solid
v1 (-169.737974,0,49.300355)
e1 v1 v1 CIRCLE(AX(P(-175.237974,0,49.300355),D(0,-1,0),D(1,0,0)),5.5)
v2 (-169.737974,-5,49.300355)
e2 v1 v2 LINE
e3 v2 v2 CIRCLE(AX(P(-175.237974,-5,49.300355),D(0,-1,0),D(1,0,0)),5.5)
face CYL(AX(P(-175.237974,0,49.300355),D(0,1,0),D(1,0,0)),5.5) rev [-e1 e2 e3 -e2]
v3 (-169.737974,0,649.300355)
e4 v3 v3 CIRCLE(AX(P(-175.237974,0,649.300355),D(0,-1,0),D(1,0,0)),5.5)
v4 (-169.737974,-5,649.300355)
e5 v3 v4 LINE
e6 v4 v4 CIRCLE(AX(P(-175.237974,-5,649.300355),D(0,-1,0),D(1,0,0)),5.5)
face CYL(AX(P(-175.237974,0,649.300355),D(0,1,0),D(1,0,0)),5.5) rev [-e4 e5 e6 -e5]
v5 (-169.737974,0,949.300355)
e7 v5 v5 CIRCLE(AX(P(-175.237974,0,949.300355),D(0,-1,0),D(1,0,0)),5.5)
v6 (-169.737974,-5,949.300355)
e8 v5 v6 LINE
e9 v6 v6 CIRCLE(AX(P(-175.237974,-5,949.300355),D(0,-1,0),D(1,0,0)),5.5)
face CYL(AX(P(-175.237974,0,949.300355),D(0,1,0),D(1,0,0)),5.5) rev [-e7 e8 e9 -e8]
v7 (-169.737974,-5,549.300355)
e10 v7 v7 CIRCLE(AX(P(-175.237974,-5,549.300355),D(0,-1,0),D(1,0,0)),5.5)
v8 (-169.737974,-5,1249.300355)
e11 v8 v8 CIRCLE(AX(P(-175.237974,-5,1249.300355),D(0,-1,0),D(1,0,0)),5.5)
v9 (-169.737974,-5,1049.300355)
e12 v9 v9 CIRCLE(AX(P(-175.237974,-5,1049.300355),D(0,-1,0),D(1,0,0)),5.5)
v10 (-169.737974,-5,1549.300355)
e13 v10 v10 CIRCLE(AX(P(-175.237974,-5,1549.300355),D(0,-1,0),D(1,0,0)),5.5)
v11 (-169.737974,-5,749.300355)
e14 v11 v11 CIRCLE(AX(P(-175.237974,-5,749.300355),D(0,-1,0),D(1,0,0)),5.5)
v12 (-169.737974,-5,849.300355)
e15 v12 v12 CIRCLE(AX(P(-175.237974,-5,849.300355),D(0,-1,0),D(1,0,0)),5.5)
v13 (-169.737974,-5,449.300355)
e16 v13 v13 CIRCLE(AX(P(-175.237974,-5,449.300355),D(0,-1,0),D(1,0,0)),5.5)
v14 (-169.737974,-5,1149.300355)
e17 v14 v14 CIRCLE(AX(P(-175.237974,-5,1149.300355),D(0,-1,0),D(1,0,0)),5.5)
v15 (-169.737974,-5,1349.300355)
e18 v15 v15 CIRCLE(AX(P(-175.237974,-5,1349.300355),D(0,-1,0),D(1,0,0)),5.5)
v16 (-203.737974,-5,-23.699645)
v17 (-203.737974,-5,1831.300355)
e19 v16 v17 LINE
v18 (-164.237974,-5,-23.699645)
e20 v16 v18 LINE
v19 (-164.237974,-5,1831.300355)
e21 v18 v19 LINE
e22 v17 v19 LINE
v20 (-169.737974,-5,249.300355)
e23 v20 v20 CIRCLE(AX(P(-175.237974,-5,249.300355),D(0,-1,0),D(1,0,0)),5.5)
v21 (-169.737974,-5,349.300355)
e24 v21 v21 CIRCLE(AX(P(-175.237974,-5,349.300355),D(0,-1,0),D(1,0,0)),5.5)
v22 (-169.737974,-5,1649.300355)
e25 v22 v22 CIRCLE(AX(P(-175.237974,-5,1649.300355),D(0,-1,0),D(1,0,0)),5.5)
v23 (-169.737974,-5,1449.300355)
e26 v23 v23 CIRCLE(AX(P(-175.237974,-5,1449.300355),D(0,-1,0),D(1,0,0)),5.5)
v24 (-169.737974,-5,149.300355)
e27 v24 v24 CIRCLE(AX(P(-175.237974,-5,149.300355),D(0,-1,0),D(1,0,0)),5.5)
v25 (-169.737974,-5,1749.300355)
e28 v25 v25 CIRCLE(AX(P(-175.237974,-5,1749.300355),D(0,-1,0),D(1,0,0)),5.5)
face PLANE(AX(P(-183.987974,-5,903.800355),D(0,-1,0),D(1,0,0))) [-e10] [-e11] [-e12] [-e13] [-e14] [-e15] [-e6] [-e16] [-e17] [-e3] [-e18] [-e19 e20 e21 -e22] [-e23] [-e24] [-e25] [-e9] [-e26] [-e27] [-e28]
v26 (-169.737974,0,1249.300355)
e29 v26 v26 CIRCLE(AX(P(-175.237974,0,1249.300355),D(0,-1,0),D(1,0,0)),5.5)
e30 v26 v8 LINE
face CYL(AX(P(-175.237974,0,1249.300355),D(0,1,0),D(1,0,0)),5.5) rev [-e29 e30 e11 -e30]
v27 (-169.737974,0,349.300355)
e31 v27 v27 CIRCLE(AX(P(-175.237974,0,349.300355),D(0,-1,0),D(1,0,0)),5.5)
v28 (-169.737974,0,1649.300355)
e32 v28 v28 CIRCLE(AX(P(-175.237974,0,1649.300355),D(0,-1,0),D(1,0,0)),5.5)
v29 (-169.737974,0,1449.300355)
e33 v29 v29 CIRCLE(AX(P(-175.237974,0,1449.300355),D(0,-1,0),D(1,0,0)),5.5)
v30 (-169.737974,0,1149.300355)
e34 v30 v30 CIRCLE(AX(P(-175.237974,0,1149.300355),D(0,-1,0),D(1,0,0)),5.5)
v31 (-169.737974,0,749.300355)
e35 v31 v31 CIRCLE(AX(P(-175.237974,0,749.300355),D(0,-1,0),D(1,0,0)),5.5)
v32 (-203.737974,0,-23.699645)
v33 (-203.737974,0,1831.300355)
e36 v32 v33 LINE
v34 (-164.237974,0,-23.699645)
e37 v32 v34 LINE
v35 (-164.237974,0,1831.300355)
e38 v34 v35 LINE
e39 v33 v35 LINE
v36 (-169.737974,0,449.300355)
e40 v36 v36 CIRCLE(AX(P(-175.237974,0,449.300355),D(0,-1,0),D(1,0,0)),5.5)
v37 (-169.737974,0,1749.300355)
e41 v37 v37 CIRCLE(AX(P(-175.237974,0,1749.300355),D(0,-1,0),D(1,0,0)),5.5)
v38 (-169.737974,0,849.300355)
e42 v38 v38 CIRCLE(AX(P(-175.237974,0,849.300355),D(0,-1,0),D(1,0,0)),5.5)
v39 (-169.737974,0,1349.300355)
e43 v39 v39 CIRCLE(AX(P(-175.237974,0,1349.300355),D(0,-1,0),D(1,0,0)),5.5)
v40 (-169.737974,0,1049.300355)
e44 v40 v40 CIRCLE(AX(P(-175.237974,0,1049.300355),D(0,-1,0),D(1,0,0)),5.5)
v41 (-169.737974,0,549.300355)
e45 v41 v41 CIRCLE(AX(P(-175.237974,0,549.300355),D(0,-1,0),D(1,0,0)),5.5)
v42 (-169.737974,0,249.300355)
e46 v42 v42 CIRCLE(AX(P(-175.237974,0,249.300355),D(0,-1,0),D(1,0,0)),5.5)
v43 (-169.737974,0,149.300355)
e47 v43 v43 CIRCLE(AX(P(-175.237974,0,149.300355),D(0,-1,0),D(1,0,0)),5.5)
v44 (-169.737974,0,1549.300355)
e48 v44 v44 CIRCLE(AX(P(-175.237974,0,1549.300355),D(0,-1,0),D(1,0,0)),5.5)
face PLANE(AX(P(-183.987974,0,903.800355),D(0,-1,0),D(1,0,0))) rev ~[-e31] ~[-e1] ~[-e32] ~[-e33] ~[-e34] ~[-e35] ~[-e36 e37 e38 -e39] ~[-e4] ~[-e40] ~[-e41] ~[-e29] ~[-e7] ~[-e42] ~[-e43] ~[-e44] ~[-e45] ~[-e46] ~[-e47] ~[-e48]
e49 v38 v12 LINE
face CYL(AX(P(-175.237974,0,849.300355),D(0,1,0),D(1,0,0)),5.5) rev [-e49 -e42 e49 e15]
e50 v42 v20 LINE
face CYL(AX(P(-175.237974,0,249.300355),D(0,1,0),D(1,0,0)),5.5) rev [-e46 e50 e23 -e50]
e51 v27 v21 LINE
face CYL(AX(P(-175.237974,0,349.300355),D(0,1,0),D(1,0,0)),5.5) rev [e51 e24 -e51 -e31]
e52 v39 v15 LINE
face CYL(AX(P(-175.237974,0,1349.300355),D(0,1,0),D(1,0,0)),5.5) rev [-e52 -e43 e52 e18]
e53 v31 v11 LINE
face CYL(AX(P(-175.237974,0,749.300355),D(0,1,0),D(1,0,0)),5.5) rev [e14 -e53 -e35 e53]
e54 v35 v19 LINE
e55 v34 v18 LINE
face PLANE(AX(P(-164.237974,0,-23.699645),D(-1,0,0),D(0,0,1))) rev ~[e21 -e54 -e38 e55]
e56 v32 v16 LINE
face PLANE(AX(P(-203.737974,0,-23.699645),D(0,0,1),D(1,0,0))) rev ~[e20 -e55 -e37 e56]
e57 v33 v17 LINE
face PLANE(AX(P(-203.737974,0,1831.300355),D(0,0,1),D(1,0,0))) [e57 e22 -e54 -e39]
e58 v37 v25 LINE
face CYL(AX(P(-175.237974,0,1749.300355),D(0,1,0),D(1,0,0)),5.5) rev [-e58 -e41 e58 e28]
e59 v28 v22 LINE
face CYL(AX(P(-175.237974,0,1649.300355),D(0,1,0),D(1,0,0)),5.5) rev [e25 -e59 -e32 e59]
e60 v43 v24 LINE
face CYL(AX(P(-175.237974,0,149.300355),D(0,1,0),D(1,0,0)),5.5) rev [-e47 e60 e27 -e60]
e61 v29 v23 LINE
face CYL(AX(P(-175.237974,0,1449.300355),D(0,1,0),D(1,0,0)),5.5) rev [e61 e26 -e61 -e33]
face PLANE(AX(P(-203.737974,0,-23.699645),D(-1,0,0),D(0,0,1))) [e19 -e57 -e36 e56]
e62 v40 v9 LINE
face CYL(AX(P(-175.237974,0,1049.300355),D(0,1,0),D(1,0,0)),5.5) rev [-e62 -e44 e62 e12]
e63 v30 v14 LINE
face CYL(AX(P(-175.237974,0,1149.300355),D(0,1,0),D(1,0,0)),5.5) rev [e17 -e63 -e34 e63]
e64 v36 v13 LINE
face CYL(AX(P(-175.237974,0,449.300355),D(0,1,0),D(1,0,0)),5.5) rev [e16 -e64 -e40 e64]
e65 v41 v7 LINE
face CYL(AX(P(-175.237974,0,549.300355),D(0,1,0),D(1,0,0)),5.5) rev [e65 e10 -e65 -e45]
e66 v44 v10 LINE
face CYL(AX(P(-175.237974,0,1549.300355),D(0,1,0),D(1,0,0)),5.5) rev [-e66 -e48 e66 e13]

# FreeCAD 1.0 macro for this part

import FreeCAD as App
import Part
import Sketcher


def add_polygon(sketch, points):
    """Adds a closed chain of lines whose ends are joined by coincident constraints."""
    first, n = sketch.GeometryCount, len(points)
    for a, b in zip(points, points[1:] + points[:1]):
        sketch.addGeometry(Part.LineSegment(App.Vector(*a, 0), App.Vector(*b, 0)), False)
    for i in range(n):
        sketch.addConstraint(Sketcher.Constraint("Coincident", first + i, 2, first + (i + 1) % n, 1))

doc = App.newDocument("Part")
body = doc.addObject("PartDesign::Body", "Body")

# Sketch on XZ plane
sketch1 = body.newObject("Sketcher::SketchObject", "Sketch")
sketch1.AttachmentSupport = (doc.getObject("XZ_Plane"), [""])
sketch1.MapMode = "FlatFace"
add_polygon(sketch1, [(-204, 1831), (-204, -24), (-164, -24), (-164, 1831)])  # lines 0-3
sketch1.addGeometry(Part.Circle(App.Vector(-175, 49, 0), App.Vector(0, 0, 1), 6), False)  # 4
sketch1.addGeometry(Part.Circle(App.Vector(-175, 149, 0), App.Vector(0, 0, 1), 6), False)  # 5
sketch1.addGeometry(Part.Circle(App.Vector(-175, 249, 0), App.Vector(0, 0, 1), 6), False)  # 6
sketch1.addGeometry(Part.Circle(App.Vector(-175, 349, 0), App.Vector(0, 0, 1), 6), False)  # 7
sketch1.addGeometry(Part.Circle(App.Vector(-175, 449, 0), App.Vector(0, 0, 1), 6), False)  # 8
sketch1.addGeometry(Part.Circle(App.Vector(-175, 549, 0), App.Vector(0, 0, 1), 6), False)  # 9
sketch1.addGeometry(Part.Circle(App.Vector(-175, 649, 0), App.Vector(0, 0, 1), 6), False)  # 10
sketch1.addGeometry(Part.Circle(App.Vector(-175, 749, 0), App.Vector(0, 0, 1), 6), False)  # 11
sketch1.addGeometry(Part.Circle(App.Vector(-175, 849, 0), App.Vector(0, 0, 1), 6), False)  # 12
sketch1.addGeometry(Part.Circle(App.Vector(-175, 949, 0), App.Vector(0, 0, 1), 6), False)  # 13
sketch1.addGeometry(Part.Circle(App.Vector(-175, 1049, 0), App.Vector(0, 0, 1), 6), False)  # 14
sketch1.addGeometry(Part.Circle(App.Vector(-175, 1149, 0), App.Vector(0, 0, 1), 6), False)  # 15
sketch1.addGeometry(Part.Circle(App.Vector(-175, 1249, 0), App.Vector(0, 0, 1), 6), False)  # 16
sketch1.addGeometry(Part.Circle(App.Vector(-175, 1349, 0), App.Vector(0, 0, 1), 6), False)  # 17
sketch1.addGeometry(Part.Circle(App.Vector(-175, 1449, 0), App.Vector(0, 0, 1), 6), False)  # 18
sketch1.addGeometry(Part.Circle(App.Vector(-175, 1549, 0), App.Vector(0, 0, 1), 6), False)  # 19
sketch1.addGeometry(Part.Circle(App.Vector(-175, 1649, 0), App.Vector(0, 0, 1), 6), False)  # 20
sketch1.addGeometry(Part.Circle(App.Vector(-175, 1749, 0), App.Vector(0, 0, 1), 6), False)  # 21
sketch1.addConstraint([
    Sketcher.Constraint("Vertical", 0),
    Sketcher.Constraint("Horizontal", 1),
    Sketcher.Constraint("Vertical", 2),
    Sketcher.Constraint("Horizontal", 3),
    Sketcher.Constraint("Equal", 4, 5),
    Sketcher.Constraint("Equal", 5, 6),
    Sketcher.Constraint("Equal", 6, 7),
    Sketcher.Constraint("Equal", 7, 8),
    Sketcher.Constraint("Equal", 8, 9),
    Sketcher.Constraint("Equal", 9, 10),
    Sketcher.Constraint("Equal", 10, 11),
    Sketcher.Constraint("Equal", 11, 12),
    Sketcher.Constraint("Equal", 12, 13),
    Sketcher.Constraint("Equal", 13, 14),
    Sketcher.Constraint("Equal", 14, 15),
    Sketcher.Constraint("Equal", 15, 16),
    Sketcher.Constraint("Equal", 16, 17),
    Sketcher.Constraint("Equal", 17, 18),
    Sketcher.Constraint("Equal", 18, 19),
    Sketcher.Constraint("Equal", 19, 20),
    Sketcher.Constraint("Equal", 20, 21),
    Sketcher.Constraint("Vertical", 4, 3, 5, 3),
    Sketcher.Constraint("Vertical", 5, 3, 6, 3),
    Sketcher.Constraint("Vertical", 6, 3, 7, 3),
    Sketcher.Constraint("Vertical", 7, 3, 8, 3),
    Sketcher.Constraint("Vertical", 8, 3, 9, 3),
    Sketcher.Constraint("Vertical", 9, 3, 10, 3),
    Sketcher.Constraint("Vertical", 10, 3, 11, 3),
    Sketcher.Constraint("Vertical", 11, 3, 12, 3),
    Sketcher.Constraint("Vertical", 12, 3, 13, 3),
    Sketcher.Constraint("Vertical", 13, 3, 14, 3),
    Sketcher.Constraint("Vertical", 14, 3, 15, 3),
    Sketcher.Constraint("Vertical", 15, 3, 16, 3),
    Sketcher.Constraint("Vertical", 16, 3, 17, 3),
    Sketcher.Constraint("Vertical", 17, 3, 18, 3),
    Sketcher.Constraint("Vertical", 18, 3, 19, 3),
    Sketcher.Constraint("Vertical", 19, 3, 20, 3),
    Sketcher.Constraint("Vertical", 20, 3, 21, 3),
    Sketcher.Constraint("Diameter", 4, 11.0),
    Sketcher.Constraint("DistanceY", 0, 2, 0, 1, 1855.0),
    Sketcher.Constraint("DistanceX", 1, 1, 1, 2, 39.5),
    Sketcher.Constraint("DistanceY", 4, 3, 5, 3, 100.0),
    Sketcher.Constraint("DistanceY", 5, 3, 6, 3, 100.0),
    Sketcher.Constraint("DistanceY", 6, 3, 7, 3, 100.0),
    Sketcher.Constraint("DistanceY", 7, 3, 8, 3, 100.0),
    Sketcher.Constraint("DistanceY", 8, 3, 9, 3, 100.0),
    Sketcher.Constraint("DistanceY", 9, 3, 10, 3, 100.0),
    Sketcher.Constraint("DistanceY", 10, 3, 11, 3, 100.0),
    Sketcher.Constraint("DistanceY", 11, 3, 12, 3, 100.0),
    Sketcher.Constraint("DistanceY", 12, 3, 13, 3, 100.0),
    Sketcher.Constraint("DistanceY", 13, 3, 14, 3, 100.0),
    Sketcher.Constraint("DistanceY", 14, 3, 15, 3, 100.0),
    Sketcher.Constraint("DistanceY", 15, 3, 16, 3, 100.0),
    Sketcher.Constraint("DistanceY", 16, 3, 17, 3, 100.0),
    Sketcher.Constraint("DistanceY", 17, 3, 18, 3, 100.0),
    Sketcher.Constraint("DistanceY", 18, 3, 19, 3, 100.0),
    Sketcher.Constraint("DistanceY", 19, 3, 20, 3, 100.0),
    Sketcher.Constraint("DistanceY", 20, 3, 21, 3, 100.0),
    Sketcher.Constraint("DistanceY", 0, 2, 4, 3, 73.0),
    Sketcher.Constraint("DistanceX", 4, 3, 1, 2, 11.0),
    Sketcher.Constraint("DistanceX", 4, 3, -1, 1, 175.237974),
    Sketcher.Constraint("DistanceY", -1, 1, 4, 3, 49.300355),
])
pad1 = body.newObject("PartDesign::Pad", "Pad")
pad1.Profile = sketch1
pad1.Length = 5

doc.recompute()
